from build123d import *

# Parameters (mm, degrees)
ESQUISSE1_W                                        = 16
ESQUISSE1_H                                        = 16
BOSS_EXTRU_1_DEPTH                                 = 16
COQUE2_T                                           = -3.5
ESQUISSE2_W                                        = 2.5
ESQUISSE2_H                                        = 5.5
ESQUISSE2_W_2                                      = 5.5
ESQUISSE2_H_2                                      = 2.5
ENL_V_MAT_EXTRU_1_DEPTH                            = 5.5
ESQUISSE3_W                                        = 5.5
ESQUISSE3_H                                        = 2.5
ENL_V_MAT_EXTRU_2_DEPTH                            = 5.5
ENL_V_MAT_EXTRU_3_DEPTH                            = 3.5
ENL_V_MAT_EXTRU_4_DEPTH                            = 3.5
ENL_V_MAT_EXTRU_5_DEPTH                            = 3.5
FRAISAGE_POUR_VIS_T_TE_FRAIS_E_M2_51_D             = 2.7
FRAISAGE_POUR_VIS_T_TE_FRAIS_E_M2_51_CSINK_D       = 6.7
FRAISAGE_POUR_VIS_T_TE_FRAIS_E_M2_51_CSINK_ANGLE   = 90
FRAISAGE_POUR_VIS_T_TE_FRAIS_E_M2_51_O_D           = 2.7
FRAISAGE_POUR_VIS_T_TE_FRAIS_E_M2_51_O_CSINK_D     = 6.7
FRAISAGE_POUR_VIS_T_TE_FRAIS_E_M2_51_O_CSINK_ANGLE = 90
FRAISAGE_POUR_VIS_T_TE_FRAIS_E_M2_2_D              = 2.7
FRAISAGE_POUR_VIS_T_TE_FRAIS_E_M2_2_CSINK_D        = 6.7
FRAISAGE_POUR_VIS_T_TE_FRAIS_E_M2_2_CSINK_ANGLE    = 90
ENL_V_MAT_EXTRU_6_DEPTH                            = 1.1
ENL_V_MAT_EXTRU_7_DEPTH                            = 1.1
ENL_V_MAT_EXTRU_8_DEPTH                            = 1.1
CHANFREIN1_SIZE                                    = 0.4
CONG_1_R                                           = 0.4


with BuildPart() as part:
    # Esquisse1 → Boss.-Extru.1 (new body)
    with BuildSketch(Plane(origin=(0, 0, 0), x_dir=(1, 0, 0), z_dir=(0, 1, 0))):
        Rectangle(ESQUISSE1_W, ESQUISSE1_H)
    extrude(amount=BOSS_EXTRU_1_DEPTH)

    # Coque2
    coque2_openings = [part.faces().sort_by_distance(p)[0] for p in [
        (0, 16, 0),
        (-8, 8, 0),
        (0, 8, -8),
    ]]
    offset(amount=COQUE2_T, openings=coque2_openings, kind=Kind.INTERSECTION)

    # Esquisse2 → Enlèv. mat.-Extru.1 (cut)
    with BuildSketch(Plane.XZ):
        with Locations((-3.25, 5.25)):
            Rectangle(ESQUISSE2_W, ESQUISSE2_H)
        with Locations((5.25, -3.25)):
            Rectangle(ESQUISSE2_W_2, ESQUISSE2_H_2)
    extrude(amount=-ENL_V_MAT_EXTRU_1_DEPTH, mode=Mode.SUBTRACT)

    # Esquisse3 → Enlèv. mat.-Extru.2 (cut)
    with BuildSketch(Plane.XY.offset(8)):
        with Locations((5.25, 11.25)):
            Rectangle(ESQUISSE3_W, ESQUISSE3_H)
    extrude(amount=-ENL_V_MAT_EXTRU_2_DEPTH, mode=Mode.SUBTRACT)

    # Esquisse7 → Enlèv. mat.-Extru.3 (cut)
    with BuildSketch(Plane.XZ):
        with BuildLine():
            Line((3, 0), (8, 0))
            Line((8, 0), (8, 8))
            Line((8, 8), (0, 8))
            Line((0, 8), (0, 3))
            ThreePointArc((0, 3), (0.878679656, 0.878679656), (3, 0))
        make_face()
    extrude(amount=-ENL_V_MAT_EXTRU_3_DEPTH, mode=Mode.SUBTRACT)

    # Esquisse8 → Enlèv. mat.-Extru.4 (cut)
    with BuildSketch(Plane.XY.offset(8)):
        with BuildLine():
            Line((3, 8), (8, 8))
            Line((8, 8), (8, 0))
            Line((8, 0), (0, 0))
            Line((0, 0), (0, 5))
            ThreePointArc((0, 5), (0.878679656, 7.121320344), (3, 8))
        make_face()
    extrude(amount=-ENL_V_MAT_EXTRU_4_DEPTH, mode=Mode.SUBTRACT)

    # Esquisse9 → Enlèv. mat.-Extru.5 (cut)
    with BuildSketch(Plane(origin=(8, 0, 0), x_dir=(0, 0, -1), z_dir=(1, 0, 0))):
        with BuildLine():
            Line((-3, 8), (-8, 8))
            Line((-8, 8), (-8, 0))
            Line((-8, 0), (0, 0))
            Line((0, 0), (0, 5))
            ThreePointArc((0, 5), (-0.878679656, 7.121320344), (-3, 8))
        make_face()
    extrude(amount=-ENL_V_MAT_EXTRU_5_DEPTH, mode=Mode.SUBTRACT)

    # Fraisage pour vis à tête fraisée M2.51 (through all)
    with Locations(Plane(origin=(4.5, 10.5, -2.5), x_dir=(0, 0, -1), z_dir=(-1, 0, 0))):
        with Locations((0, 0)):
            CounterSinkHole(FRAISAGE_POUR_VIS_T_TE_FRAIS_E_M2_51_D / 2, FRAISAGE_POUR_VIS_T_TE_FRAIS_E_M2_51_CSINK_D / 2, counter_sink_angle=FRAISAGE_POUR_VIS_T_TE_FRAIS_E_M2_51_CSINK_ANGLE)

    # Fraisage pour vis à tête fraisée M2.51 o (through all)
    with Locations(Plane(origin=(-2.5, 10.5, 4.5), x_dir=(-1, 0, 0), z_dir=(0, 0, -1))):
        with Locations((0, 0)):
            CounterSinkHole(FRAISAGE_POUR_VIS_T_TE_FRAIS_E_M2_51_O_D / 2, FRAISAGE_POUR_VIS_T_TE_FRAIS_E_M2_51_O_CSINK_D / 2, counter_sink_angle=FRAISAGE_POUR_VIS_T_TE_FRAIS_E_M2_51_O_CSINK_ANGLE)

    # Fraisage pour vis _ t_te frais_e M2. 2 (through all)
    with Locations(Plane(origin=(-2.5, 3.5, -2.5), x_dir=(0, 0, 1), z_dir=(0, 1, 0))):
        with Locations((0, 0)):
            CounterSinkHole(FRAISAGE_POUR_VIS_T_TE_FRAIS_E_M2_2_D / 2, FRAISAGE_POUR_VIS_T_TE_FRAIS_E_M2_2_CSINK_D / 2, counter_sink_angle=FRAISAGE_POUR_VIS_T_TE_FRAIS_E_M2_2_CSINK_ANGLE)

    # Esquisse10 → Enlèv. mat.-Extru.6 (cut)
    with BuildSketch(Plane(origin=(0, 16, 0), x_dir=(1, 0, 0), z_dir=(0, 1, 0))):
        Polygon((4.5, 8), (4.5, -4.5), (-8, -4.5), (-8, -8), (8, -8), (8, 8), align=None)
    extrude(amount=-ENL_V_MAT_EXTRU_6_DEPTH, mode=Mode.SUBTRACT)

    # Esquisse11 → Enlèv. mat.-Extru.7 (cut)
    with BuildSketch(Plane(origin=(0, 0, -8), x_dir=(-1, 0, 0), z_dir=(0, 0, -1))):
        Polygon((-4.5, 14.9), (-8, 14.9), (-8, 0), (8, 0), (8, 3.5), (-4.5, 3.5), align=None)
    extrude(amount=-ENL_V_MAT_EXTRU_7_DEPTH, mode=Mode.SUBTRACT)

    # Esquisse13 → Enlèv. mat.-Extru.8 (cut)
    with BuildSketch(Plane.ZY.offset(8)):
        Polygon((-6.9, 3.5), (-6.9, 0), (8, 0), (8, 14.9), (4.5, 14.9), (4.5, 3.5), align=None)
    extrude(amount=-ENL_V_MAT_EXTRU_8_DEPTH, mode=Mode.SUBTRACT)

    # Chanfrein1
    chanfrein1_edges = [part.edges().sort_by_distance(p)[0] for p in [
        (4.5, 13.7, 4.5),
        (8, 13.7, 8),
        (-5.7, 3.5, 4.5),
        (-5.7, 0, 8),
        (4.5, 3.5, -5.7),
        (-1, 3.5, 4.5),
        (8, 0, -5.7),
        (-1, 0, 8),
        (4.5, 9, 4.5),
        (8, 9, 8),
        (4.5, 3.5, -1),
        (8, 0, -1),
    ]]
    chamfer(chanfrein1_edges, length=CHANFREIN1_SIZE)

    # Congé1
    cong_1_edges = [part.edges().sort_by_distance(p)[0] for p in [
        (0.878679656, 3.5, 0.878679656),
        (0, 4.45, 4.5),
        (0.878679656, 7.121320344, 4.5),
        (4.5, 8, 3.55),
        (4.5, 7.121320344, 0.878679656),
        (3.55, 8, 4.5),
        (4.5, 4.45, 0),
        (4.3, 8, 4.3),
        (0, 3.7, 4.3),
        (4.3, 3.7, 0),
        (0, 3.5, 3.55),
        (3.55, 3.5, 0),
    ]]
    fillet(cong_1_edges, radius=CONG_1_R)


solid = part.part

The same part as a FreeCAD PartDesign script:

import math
import FreeCAD as App
import Part
import Sketcher
from FreeCAD import Vector


def edges_at(feature, points):
    """Names of the edges that pass closest to the given points."""
    edges = feature.Shape.Edges
    near = lambda p: min(range(len(edges)), key=lambda i: edges[i].distToShape(Part.Vertex(*p))[0])
    return sorted({f"Edge{near(p) + 1}" for p in points})


def faces_at(feature, points):
    """Names of the faces that lie closest to the given points."""
    faces = feature.Shape.Faces
    near = lambda p: min(range(len(faces)), key=lambda i: faces[i].distToShape(Part.Vertex(*p))[0])
    return sorted({f"Face{near(p) + 1}" for p in points})


def add_polygon(sketch, points):
    """Adds a closed chain of lines whose ends are joined by coincident constraints."""
    first, n = sketch.GeometryCount, len(points)
    for a, b in zip(points, points[1:] + points[:1]):
        sketch.addGeometry(Part.LineSegment(App.Vector(*a, 0), App.Vector(*b, 0)), False)
    for i in range(n):
        sketch.addConstraint(Sketcher.Constraint("Coincident", first + i, 2, first + (i + 1) % n, 1))

doc = App.newDocument("Part")
body = doc.addObject("PartDesign::Body", "Body")

# Sketch on XZ plane
sketch1 = doc.addObject("Sketcher::SketchObject", "Sketch")
body.addObject(sketch1)
sketch1.AttachmentSupport = (doc.XZ_Plane, [""])
sketch1.MapMode = "FlatFace"
add_polygon(sketch1, [(-8, -8), (-8, 8), (8, 8), (8, -8)])  # lines 0-3
sketch1.addConstraint([
    Sketcher.Constraint("Vertical", 0),
    Sketcher.Constraint("Horizontal", 1),
    Sketcher.Constraint("Vertical", 2),
    Sketcher.Constraint("Horizontal", 3),
    Sketcher.Constraint("Symmetric", 0, 2, 2, 2, -1, 1),
    Sketcher.Constraint("Equal", 3, 0),
    Sketcher.Constraint("DistanceX", 1, 1, 1, 2, 16.0),
])
pad1 = doc.addObject("PartDesign::Pad", "Pad")
body.addObject(pad1)
pad1.Profile = sketch1
pad1.Length = 16
pad1.Reversed = True
doc.recompute()

thickness = doc.addObject("PartDesign::Thickness", "Thickness")
body.addObject(thickness)
thickness.Base = (pad1, faces_at(pad1, [(0, 16, 0), (-8, 8, 0), (0, 8, -8)]))
thickness.Value = 3.5
thickness.Reversed = True
thickness.Join = "Intersection"

# Sketch on XZ plane
sketch2 = doc.addObject("Sketcher::SketchObject", "Sketch001")
body.addObject(sketch2)
sketch2.AttachmentSupport = (doc.XZ_Plane, [""])
sketch2.MapMode = "FlatFace"
add_polygon(sketch2, [(-4.5, 8), (-4.5, 2.5), (-2, 2.5), (-2, 8)])  # lines 0-3
add_polygon(sketch2, [(2.5, -2), (2.5, -4.5), (8, -4.5), (8, -2)])  # lines 4-7
sketch2.addConstraint([
    Sketcher.Constraint("Vertical", 0),
    Sketcher.Constraint("Horizontal", 1),
    Sketcher.Constraint("Vertical", 2),
    Sketcher.Constraint("Horizontal", 3),
    Sketcher.Constraint("Vertical", 4),
    Sketcher.Constraint("Horizontal", 5),
    Sketcher.Constraint("Vertical", 6),
    Sketcher.Constraint("Horizontal", 7),
    Sketcher.Constraint("Equal", 7, 0),
    Sketcher.Constraint("Equal", 3, 4),
    Sketcher.Constraint("DistanceX", 1, 1, 1, 2, 2.5),
    Sketcher.Constraint("DistanceX", 5, 1, 5, 2, 5.5),
    Sketcher.Constraint("DistanceX", 1, 2, -1, 1, 2.0),
    Sketcher.Constraint("DistanceY", -1, 1, 2, 2, 8.0),
    Sketcher.Constraint("DistanceX", -1, 1, 5, 2, 8.0),
    Sketcher.Constraint("DistanceY", 6, 2, -1, 1, 2.0),
])
pocket1 = doc.addObject("PartDesign::Pocket", "Pocket")
body.addObject(pocket1)
pocket1.Profile = sketch2
pocket1.Length = 5.5

# Sketch on XY plane
sketch3 = doc.addObject("Sketcher::SketchObject", "Sketch002")
body.addObject(sketch3)
sketch3.AttachmentSupport = (doc.XY_Plane, [""])
sketch3.MapMode = "FlatFace"
sketch3.AttachmentOffset = App.Placement(Vector(0, 0, 8), App.Rotation())
add_polygon(sketch3, [(2.5, 12.5), (2.5, 10), (8, 10), (8, 12.5)])  # lines 0-3
sketch3.addConstraint([
    Sketcher.Constraint("Vertical", 0),
    Sketcher.Constraint("Horizontal", 1),
    Sketcher.Constraint("Vertical", 2),
    Sketcher.Constraint("Horizontal", 3),
    Sketcher.Constraint("DistanceX", 1, 1, 1, 2, 5.5),
    Sketcher.Constraint("DistanceY", 0, 2, 0, 1, 2.5),
    Sketcher.Constraint("DistanceY", -1, 1, 0, 2, 10.0),
    Sketcher.Constraint("DistanceX", -1, 1, 1, 2, 8.0),
])
pocket2 = doc.addObject("PartDesign::Pocket", "Pocket001")
body.addObject(pocket2)
pocket2.Profile = sketch3
pocket2.Length = 5.5

# Sketch on XZ plane
sketch4 = doc.addObject("Sketcher::SketchObject", "Sketch003")
body.addObject(sketch4)
sketch4.AttachmentSupport = (doc.XZ_Plane, [""])
sketch4.MapMode = "FlatFace"
sketch4.addGeometry([
    Part.LineSegment(Vector(3, 0, 0), Vector(8, 0, 0)),  # 0
    Part.LineSegment(Vector(8, 0, 0), Vector(8, 8, 0)),  # 1
    Part.LineSegment(Vector(8, 8, 0), Vector(0, 8, 0)),  # 2
    Part.LineSegment(Vector(0, 8, 0), Vector(0, 3, 0)),  # 3
    Part.ArcOfCircle(Part.Circle(Vector(3, 3, 0), Vector(0, 0, 1), 3), math.radians(180), math.radians(270)),  # 4
], False)
sketch4.addConstraint([
    Sketcher.Constraint("Coincident", 0, 2, 1, 1),
    Sketcher.Constraint("Coincident", 1, 2, 2, 1),
    Sketcher.Constraint("Coincident", 2, 2, 3, 1),
    Sketcher.Constraint("Tangent", 3, 2, 4, 1),
    Sketcher.Constraint("Tangent", 4, 2, 0, 1),
    Sketcher.Constraint("Horizontal", 0),
    Sketcher.Constraint("Vertical", 1),
    Sketcher.Constraint("Horizontal", 2),
    Sketcher.Constraint("Vertical", 3),
    Sketcher.Constraint("PointOnObject", 0, 2, -1),
    Sketcher.Constraint("PointOnObject", 2, 2, -2),
    Sketcher.Constraint("Equal", 2, 1),
    Sketcher.Constraint("Radius", 4, 3.0),
    Sketcher.Constraint("DistanceX", 0, 1, 0, 2, 5.0),
])
pocket3 = doc.addObject("PartDesign::Pocket", "Pocket002")
body.addObject(pocket3)
pocket3.Profile = sketch4
pocket3.Length = 3.5

# Sketch on XY plane
sketch5 = doc.addObject("Sketcher::SketchObject", "Sketch004")
body.addObject(sketch5)
sketch5.AttachmentSupport = (doc.XY_Plane, [""])
sketch5.MapMode = "FlatFace"
sketch5.AttachmentOffset = App.Placement(Vector(0, 0, 8), App.Rotation())
sketch5.addGeometry([
    Part.LineSegment(Vector(8, 8, 0), Vector(3, 8, 0)),  # 0
    Part.ArcOfCircle(Part.Circle(Vector(3, 5, 0), Vector(0, 0, 1), 3), math.radians(90), math.radians(180)),  # 1
    Part.LineSegment(Vector(0, 5, 0), Vector(0, 0, 0)),  # 2
    Part.LineSegment(Vector(0, 0, 0), Vector(8, 0, 0)),  # 3
    Part.LineSegment(Vector(8, 0, 0), Vector(8, 8, 0)),  # 4
], False)
sketch5.addConstraint([
    Sketcher.Constraint("Tangent", 0, 2, 1, 1),
    Sketcher.Constraint("Tangent", 1, 2, 2, 1),
    Sketcher.Constraint("Coincident", 2, 2, 3, 1),
    Sketcher.Constraint("Coincident", 3, 2, 4, 1),
    Sketcher.Constraint("Coincident", 4, 2, 0, 1),
    Sketcher.Constraint("Horizontal", 0),
    Sketcher.Constraint("Vertical", 2),
    Sketcher.Constraint("Horizontal", 3),
    Sketcher.Constraint("Vertical", 4),
    Sketcher.Constraint("Coincident", 2, 2, -1, 1),
    Sketcher.Constraint("Equal", 0, 2),
    Sketcher.Constraint("Radius", 1, 3.0),
    Sketcher.Constraint("DistanceX", 0, 2, 0, 1, 5.0),
])
pocket4 = doc.addObject("PartDesign::Pocket", "Pocket003")
body.addObject(pocket4)
pocket4.Profile = sketch5
pocket4.Length = 3.5

# Sketch on YZ plane
sketch6 = doc.addObject("Sketcher::SketchObject", "Sketch005")
body.addObject(sketch6)
sketch6.AttachmentSupport = (doc.YZ_Plane, [""])
sketch6.MapMode = "FlatFace"
sketch6.AttachmentOffset = App.Placement(Vector(0, 0, 8), App.Rotation())
sketch6.addGeometry([
    Part.LineSegment(Vector(8, 3, 0), Vector(8, 8, 0)),  # 0
    Part.LineSegment(Vector(8, 8, 0), Vector(0, 8, 0)),  # 1
    Part.LineSegment(Vector(0, 8, 0), Vector(0, 0, 0)),  # 2
    Part.LineSegment(Vector(0, 0, 0), Vector(5, 0, 0)),  # 3
    Part.ArcOfCircle(Part.Circle(Vector(5, 3, 0), Vector(0, 0, 1), 3), math.radians(-90), math.radians(0)),  # 4
], False)
sketch6.addConstraint([
    Sketcher.Constraint("Coincident", 0, 2, 1, 1),
    Sketcher.Constraint("Coincident", 1, 2, 2, 1),
    Sketcher.Constraint("Coincident", 2, 2, 3, 1),
    Sketcher.Constraint("Tangent", 3, 2, 4, 1),
    Sketcher.Constraint("Tangent", 4, 2, 0, 1),
    Sketcher.Constraint("Vertical", 0),
    Sketcher.Constraint("Horizontal", 1),
    Sketcher.Constraint("Vertical", 2),
    Sketcher.Constraint("Horizontal", 3),
    Sketcher.Constraint("Coincident", 2, 2, -1, 1),
    Sketcher.Constraint("Equal", 3, 0),
    Sketcher.Constraint("Radius", 4, 3.0),
    Sketcher.Constraint("DistanceX", 1, 2, 1, 1, 8.0),
])
pocket5 = doc.addObject("PartDesign::Pocket", "Pocket004")
body.addObject(pocket5)
pocket5.Profile = sketch6
pocket5.Length = 3.5

# Sketch on YZ plane
sketch7 = doc.addObject("Sketcher::SketchObject", "Sketch006")
body.addObject(sketch7)
sketch7.AttachmentSupport = (doc.YZ_Plane, [""])
sketch7.MapMode = "FlatFace"
sketch7.AttachmentOffset = App.Placement(Vector(0, 0, 4.5), App.Rotation())
sketch7.addGeometry(Part.Circle(Vector(10.5, -2.5, 0), Vector(0, 0, 1), 1.35), False)
sketch7.addConstraint([
    Sketcher.Constraint("Diameter", 0, 2.7),
    Sketcher.Constraint("DistanceX", -1, 1, 0, 3, 10.5),
    Sketcher.Constraint("DistanceY", 0, 3, -1, 1, 2.5),
])
doc.recompute()
hole = doc.addObject("PartDesign::Hole", "Hole")
body.addObject(hole)
hole.Profile = sketch7
hole.ThreadType = "None"
hole.Diameter = 2.7
hole.DepthType = "ThroughAll"
hole.HoleCutType = "Countersink"
hole.HoleCutDiameter = 6.7
hole.HoleCutCountersinkAngle = 90
hole.Reversed = True

# Sketch on XY plane
sketch8 = doc.addObject("Sketcher::SketchObject", "Sketch007")
body.addObject(sketch8)
sketch8.AttachmentSupport = (doc.XY_Plane, [""])
sketch8.MapMode = "FlatFace"
sketch8.AttachmentOffset = App.Placement(Vector(0, 0, 4.5), App.Rotation())
sketch8.addGeometry(Part.Circle(Vector(-2.5, 10.5, 0), Vector(0, 0, 1), 1.35), False)
sketch8.addConstraint([
    Sketcher.Constraint("Diameter", 0, 2.7),
    Sketcher.Constraint("DistanceX", 0, 3, -1, 1, 2.5),
    Sketcher.Constraint("DistanceY", -1, 1, 0, 3, 10.5),
])
doc.recompute()
hole2 = doc.addObject("PartDesign::Hole", "Hole001")
body.addObject(hole2)
hole2.Profile = sketch8
hole2.ThreadType = "None"
hole2.Diameter = 2.7
hole2.DepthType = "ThroughAll"
hole2.HoleCutType = "Countersink"
hole2.HoleCutDiameter = 6.7
hole2.HoleCutCountersinkAngle = 90
hole2.Reversed = True

# Sketch on XZ plane
sketch9 = doc.addObject("Sketcher::SketchObject", "Sketch008")
body.addObject(sketch9)
sketch9.AttachmentSupport = (doc.XZ_Plane, [""])
sketch9.MapMode = "FlatFace"
sketch9.AttachmentOffset = App.Placement(Vector(0, 0, -3.5), App.Rotation())
sketch9.addGeometry(Part.Circle(Vector(-2.5, -2.5, 0), Vector(0, 0, 1), 1.35), False)
sketch9.addConstraint([
    Sketcher.Constraint("Diameter", 0, 2.7),
    Sketcher.Constraint("DistanceX", 0, 3, -1, 1, 2.5),
    Sketcher.Constraint("DistanceY", 0, 3, -1, 1, 2.5),
])
doc.recompute()
hole3 = doc.addObject("PartDesign::Hole", "Hole002")
body.addObject(hole3)
hole3.Profile = sketch9
hole3.ThreadType = "None"
hole3.Diameter = 2.7
hole3.DepthType = "ThroughAll"
hole3.HoleCutType = "Countersink"
hole3.HoleCutDiameter = 6.7
hole3.HoleCutCountersinkAngle = 90
hole3.Reversed = True

# Sketch on XZ plane
sketch10 = doc.addObject("Sketcher::SketchObject", "Sketch009")
body.addObject(sketch10)
sketch10.AttachmentSupport = (doc.XZ_Plane, [""])
sketch10.MapMode = "FlatFace"
sketch10.AttachmentOffset = App.Placement(Vector(0, 0, -16), App.Rotation())
add_polygon(sketch10, [(4.5, -8), (4.5, 4.5), (-8, 4.5), (-8, 8), (8, 8), (8, -8)])  # lines 0-5
sketch10.addConstraint([
    Sketcher.Constraint("Vertical", 0),
    Sketcher.Constraint("Horizontal", 1),
    Sketcher.Constraint("Vertical", 2),
    Sketcher.Constraint("Horizontal", 3),
    Sketcher.Constraint("Vertical", 4),
    Sketcher.Constraint("Horizontal", 5),
    Sketcher.Constraint("Symmetric", 2, 2, 4, 2, -1, 1),
    Sketcher.Constraint("Equal", 1, 0),
    Sketcher.Constraint("Equal", 5, 2),
    Sketcher.Constraint("DistanceX", 3, 1, 3, 2, 16.0),
    Sketcher.Constraint("DistanceX", 1, 2, 1, 1, 12.5),
])
pocket6 = doc.addObject("PartDesign::Pocket", "Pocket005")
body.addObject(pocket6)
pocket6.Profile = sketch10
pocket6.Length = 1.1
pocket6.Reversed = True

# Sketch on XY plane
sketch11 = doc.addObject("Sketcher::SketchObject", "Sketch010")
body.addObject(sketch11)
sketch11.AttachmentSupport = (doc.XY_Plane, [""])
sketch11.MapMode = "FlatFace"
sketch11.AttachmentOffset = App.Placement(Vector(0, 0, -8), App.Rotation())
add_polygon(sketch11, [(4.5, 14.9), (8, 14.9), (8, 0), (-8, 0), (-8, 3.5), (4.5, 3.5)])  # lines 0-5
sketch11.addConstraint([
    Sketcher.Constraint("Horizontal", 0),
    Sketcher.Constraint("Vertical", 1),
    Sketcher.Constraint("Horizontal", 2),
    Sketcher.Constraint("Vertical", 3),
    Sketcher.Constraint("Horizontal", 4),
    Sketcher.Constraint("Vertical", 5),
    Sketcher.Constraint("Symmetric", 1, 2, 2, 2, -1, 1),
    Sketcher.Constraint("Equal", 0, 3),
    Sketcher.Constraint("DistanceX", 2, 2, 2, 1, 16.0),
    Sketcher.Constraint("DistanceX", 0, 1, 0, 2, 3.5),
    Sketcher.Constraint("DistanceY", 1, 2, 1, 1, 14.9),
])
pocket7 = doc.addObject("PartDesign::Pocket", "Pocket006")
body.addObject(pocket7)
pocket7.Profile = sketch11
pocket7.Length = 1.1
pocket7.Reversed = True

# Sketch on YZ plane
sketch12 = doc.addObject("Sketcher::SketchObject", "Sketch011")
body.addObject(sketch12)
sketch12.AttachmentSupport = (doc.YZ_Plane, [""])
sketch12.MapMode = "FlatFace"
sketch12.AttachmentOffset = App.Placement(Vector(0, 0, -8), App.Rotation())
add_polygon(sketch12, [(3.5, -6.9), (0, -6.9), (0, 8), (14.9, 8), (14.9, 4.5), (3.5, 4.5)])  # lines 0-5
sketch12.addConstraint([
    Sketcher.Constraint("Horizontal", 0),
    Sketcher.Constraint("Vertical", 1),
    Sketcher.Constraint("Horizontal", 2),
    Sketcher.Constraint("Vertical", 3),
    Sketcher.Constraint("Horizontal", 4),
    Sketcher.Constraint("Vertical", 5),
    Sketcher.Constraint("PointOnObject", 0, 2, -2),
    Sketcher.Constraint("Equal", 2, 1),
    Sketcher.Constraint("Equal", 0, 3),
    Sketcher.Constraint("DistanceX", 0, 2, 0, 1, 3.5),
    Sketcher.Constraint("DistanceX", 2, 1, 2, 2, 14.9),
    Sketcher.Constraint("DistanceY", -1, 1, 1, 2, 8.0),
])
pocket8 = doc.addObject("PartDesign::Pocket", "Pocket007")
body.addObject(pocket8)
pocket8.Profile = sketch12
pocket8.Length = 1.1
pocket8.Reversed = True
doc.recompute()

chamfer = doc.addObject("PartDesign::Chamfer", "Chamfer")
body.addObject(chamfer)
chamfer.Base = (pocket8, edges_at(pocket8, [
    (4.5, 13.7, 4.5),
    (8, 13.7, 8),
    (-5.7, 3.5, 4.5),
    (-5.7, 0, 8),
    (4.5, 3.5, -5.7),
    (-1, 3.5, 4.5),
    (8, 0, -5.7),
    (-1, 0, 8),
    (4.5, 9, 4.5),
    (8, 9, 8),
    (4.5, 3.5, -1),
    (8, 0, -1),
]))
chamfer.Size = 0.4
doc.recompute()

fillet = doc.addObject("PartDesign::Fillet", "Fillet")
body.addObject(fillet)
fillet.Base = (chamfer, edges_at(chamfer, [
    (0.879, 3.5, 0.879),
    (0, 4.45, 4.5),
    (0.879, 7.121, 4.5),
    (4.5, 8, 3.55),
    (4.5, 7.121, 0.879),
    (3.55, 8, 4.5),
    (4.5, 4.45, 0),
    (4.3, 8, 4.3),
    (0, 3.7, 4.3),
    (4.3, 3.7, 0),
    (0, 3.5, 3.55),
    (3.55, 3.5, 0),
]))
fillet.Radius = 0.4

doc.recompute()
